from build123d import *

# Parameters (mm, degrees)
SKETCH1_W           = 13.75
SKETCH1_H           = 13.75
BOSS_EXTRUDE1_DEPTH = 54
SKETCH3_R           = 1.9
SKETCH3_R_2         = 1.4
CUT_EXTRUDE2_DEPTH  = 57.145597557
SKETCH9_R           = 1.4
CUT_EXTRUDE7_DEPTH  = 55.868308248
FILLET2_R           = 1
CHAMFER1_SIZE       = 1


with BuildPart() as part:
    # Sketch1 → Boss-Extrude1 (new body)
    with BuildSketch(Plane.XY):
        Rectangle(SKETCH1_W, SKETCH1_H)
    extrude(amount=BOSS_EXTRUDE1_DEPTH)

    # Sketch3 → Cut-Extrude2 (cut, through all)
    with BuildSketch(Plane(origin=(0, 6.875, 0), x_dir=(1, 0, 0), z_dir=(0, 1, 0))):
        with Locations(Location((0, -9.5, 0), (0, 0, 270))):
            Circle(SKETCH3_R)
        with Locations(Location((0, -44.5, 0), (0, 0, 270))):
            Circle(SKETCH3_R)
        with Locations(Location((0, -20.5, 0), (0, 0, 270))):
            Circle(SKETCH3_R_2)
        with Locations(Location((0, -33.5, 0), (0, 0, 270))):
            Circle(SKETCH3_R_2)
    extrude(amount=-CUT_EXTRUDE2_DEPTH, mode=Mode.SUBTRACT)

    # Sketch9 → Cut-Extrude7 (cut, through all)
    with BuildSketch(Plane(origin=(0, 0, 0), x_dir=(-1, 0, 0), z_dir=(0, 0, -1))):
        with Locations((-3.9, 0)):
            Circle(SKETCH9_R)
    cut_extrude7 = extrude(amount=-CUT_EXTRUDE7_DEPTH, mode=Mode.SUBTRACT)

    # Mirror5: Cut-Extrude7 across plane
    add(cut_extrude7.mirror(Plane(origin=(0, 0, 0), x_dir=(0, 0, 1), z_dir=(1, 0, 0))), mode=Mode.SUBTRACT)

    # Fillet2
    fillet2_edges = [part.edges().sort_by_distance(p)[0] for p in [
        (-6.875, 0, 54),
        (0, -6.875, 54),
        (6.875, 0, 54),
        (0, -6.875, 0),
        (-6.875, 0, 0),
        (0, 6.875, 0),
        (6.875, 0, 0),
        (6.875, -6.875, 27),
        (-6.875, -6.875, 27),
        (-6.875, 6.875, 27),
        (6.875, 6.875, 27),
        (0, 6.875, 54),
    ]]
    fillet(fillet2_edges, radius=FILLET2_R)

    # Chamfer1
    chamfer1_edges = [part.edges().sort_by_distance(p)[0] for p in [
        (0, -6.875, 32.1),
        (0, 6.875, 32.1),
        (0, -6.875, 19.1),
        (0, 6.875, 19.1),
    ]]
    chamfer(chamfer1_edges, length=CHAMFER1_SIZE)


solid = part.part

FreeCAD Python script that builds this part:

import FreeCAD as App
import Part
import Sketcher
Q = App.Units.Quantity


def edges_at(feature, points):
    """Names of the edges that pass closest to the given points."""
    edges = feature.Shape.Edges
    near = lambda p: min(range(len(edges)), key=lambda i: edges[i].distToShape(Part.Vertex(*p))[0])
    return sorted({f"Edge{near(p) + 1}" for p in points})


def add_polygon(sketch, points):
    """Adds a closed chain of lines whose ends are joined by coincident constraints."""
    first, n = sketch.GeometryCount, len(points)
    for a, b in zip(points, points[1:] + points[:1]):
        sketch.addGeometry(Part.LineSegment(App.Vector(*a, 0), App.Vector(*b, 0)), False)
    for i in range(n):
        sketch.addConstraint(Sketcher.Constraint("Coincident", first + i, 2, first + (i + 1) % n, 1))

doc = App.newDocument("Part")
body = doc.addObject("PartDesign::Body", "Body")

sketch1 = body.newObject("Sketcher::SketchObject", "Sketch")
sketch1.AttachmentSupport = (doc.getObject("XY_Plane"), [""])
sketch1.MapMode = "FlatFace"
add_polygon(sketch1, [(-7, 7), (-7, -7), (7, -7), (7, 7)])
sketch1.addConstraint([
    Sketcher.Constraint("Vertical", 0),
    Sketcher.Constraint("Horizontal", 1),
    Sketcher.Constraint("Vertical", 2),
    Sketcher.Constraint("Horizontal", 3),
    Sketcher.Constraint("Symmetric", 0, 2, 2, 2, -1, 1),
    Sketcher.Constraint("Equal", 3, 0),
    Sketcher.Constraint("DistanceX", 1, 1, 1, 2, Q("13.75 mm")),
])
pad1 = body.newObject("PartDesign::Pad", "Pad")
pad1.Profile = sketch1
pad1.Length = 54

sketch2 = body.newObject("Sketcher::SketchObject", "Sketch001")
sketch2.AttachmentSupport = (doc.getObject("XZ_Plane"), [""])
sketch2.MapMode = "FlatFace"
sketch2.AttachmentOffset = App.Placement(App.Vector(0, 0, -6.875), App.Rotation())
sketch2.addGeometry([
    Part.Circle(App.Vector(0, 9.5, 0), App.Vector(0, 0, 1), 1.9),
    Part.Circle(App.Vector(0, 44.5, 0), App.Vector(0, 0, 1), 1.9),
    Part.Circle(App.Vector(0, 20.5, 0), App.Vector(0, 0, 1), 1.4),
    Part.Circle(App.Vector(0, 33.5, 0), App.Vector(0, 0, 1), 1.4),
], False)
sketch2.addConstraint([
    Sketcher.Constraint("Equal", 0, 1),
    Sketcher.Constraint("Equal", 2, 3),
    Sketcher.Constraint("PointOnObject", 0, 3, -2),
    Sketcher.Constraint("PointOnObject", 1, 3, -2),
    Sketcher.Constraint("PointOnObject", 2, 3, -2),
    Sketcher.Constraint("PointOnObject", 3, 3, -2),
    Sketcher.Constraint("Diameter", 0, Q("3.8 mm")),
    Sketcher.Constraint("Diameter", 2, Q("2.8 mm")),
    Sketcher.Constraint("DistanceY", 0, 3, 1, 3, Q("35 mm")),
    Sketcher.Constraint("DistanceY", 0, 3, 2, 3, Q("11 mm")),
    Sketcher.Constraint("DistanceY", 3, 3, 1, 3, Q("11 mm")),
    Sketcher.Constraint("DistanceY", -1, 1, 0, 3, Q("9.5 mm")),
])
pocket1 = body.newObject("PartDesign::Pocket", "Pocket")
pocket1.Profile = sketch2
pocket1.Type = "ThroughAll"
pocket1.Reversed = True

sketch3 = body.newObject("Sketcher::SketchObject", "Sketch002")
sketch3.AttachmentSupport = (doc.getObject("XY_Plane"), [""])
sketch3.MapMode = "FlatFace"
sketch3.addGeometry(Part.Circle(App.Vector(3.9, 0, 0), App.Vector(0, 0, 1), 1.4), False)
sketch3.addConstraint([
    Sketcher.Constraint("PointOnObject", 0, 3, -1),
    Sketcher.Constraint("Diameter", 0, Q("2.8 mm")),
    Sketcher.Constraint("DistanceX", -1, 1, 0, 3, Q("3.9 mm")),
])
pocket2 = body.newObject("PartDesign::Pocket", "Pocket001")
pocket2.Profile = sketch3
pocket2.Type = "ThroughAll"
pocket2.Reversed = True
doc.recompute()

mirrored = body.newObject("PartDesign::Mirrored", "Mirrored")
mirrored.Originals = [pocket2]
mirrored.MirrorPlane = (doc.getObject("YZ_Plane"), [""])
body.Tip = mirrored
doc.recompute()

fillet = body.newObject("PartDesign::Fillet", "Fillet")
fillet.Base = (mirrored, edges_at(mirrored, [
    (-6.875, 0, 54),
    (0, -6.875, 54),
    (6.875, 0, 54),
    (0, -6.875, 0),
    (-6.875, 0, 0),
    (0, 6.875, 0),
    (6.875, 0, 0),
    (6.875, -6.875, 27),
    (-6.875, -6.875, 27),
    (-6.875, 6.875, 27),
    (6.875, 6.875, 27),
    (0, 6.875, 54),
]))
fillet.Radius = 1
doc.recompute()

chamfer = body.newObject("PartDesign::Chamfer", "Chamfer")
chamfer.Base = (fillet, edges_at(fillet, [
    (0, -6.875, 32.1),
    (0, 6.875, 32.1),
    (0, -6.875, 19.1),
    (0, 6.875, 19.1),
]))
chamfer.Size = 1

doc.recompute()
